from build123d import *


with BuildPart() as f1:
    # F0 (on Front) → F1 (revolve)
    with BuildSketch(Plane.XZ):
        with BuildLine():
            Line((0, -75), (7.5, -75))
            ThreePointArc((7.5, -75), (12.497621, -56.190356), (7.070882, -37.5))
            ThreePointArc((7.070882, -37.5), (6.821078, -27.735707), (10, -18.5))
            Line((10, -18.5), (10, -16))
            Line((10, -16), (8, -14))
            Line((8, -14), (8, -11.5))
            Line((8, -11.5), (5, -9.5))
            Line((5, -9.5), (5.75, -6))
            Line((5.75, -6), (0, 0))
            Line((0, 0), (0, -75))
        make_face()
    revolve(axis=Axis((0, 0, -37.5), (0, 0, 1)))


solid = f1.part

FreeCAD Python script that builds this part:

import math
import FreeCAD as App
import Part
import Sketcher
Q = App.Units.Quantity

doc = App.newDocument("Part")
body = doc.addObject("PartDesign::Body", "Body")

# Sketch on XZ plane
sketch1 = body.newObject("Sketcher::SketchObject", "Sketch")
sketch1.AttachmentSupport = (doc.getObject("XZ_Plane"), [""])
sketch1.MapMode = "FlatFace"
sketch1.addGeometry([
    Part.LineSegment(App.Vector(0, -75, 0), App.Vector(7.5, -75, 0)),  # 0
    Part.ArcOfCircle(Part.Circle(App.Vector(-23.8, -56.6, 0), App.Vector(0, 0, 1), 36.3), math.radians(-30), math.radians(32)),  # 1
    Part.ArcOfCircle(Part.Circle(App.Vector(34, -31.9, 0), App.Vector(0, 0, 1), 27.5), math.radians(151), math.radians(192)),  # 2
    Part.LineSegment(App.Vector(10, -18.5, 0), App.Vector(10, -16, 0)),  # 3
    Part.LineSegment(App.Vector(10, -16, 0), App.Vector(8, -14, 0)),  # 4
    Part.LineSegment(App.Vector(8, -14, 0), App.Vector(8, -11.5, 0)),  # 5
    Part.LineSegment(App.Vector(8, -11.5, 0), App.Vector(5, -9.5, 0)),  # 6
    Part.LineSegment(App.Vector(5, -9.5, 0), App.Vector(5.8, -6, 0)),  # 7
    Part.LineSegment(App.Vector(5.8, -6, 0), App.Vector(0, 0, 0)),  # 8
    Part.LineSegment(App.Vector(0, 0, 0), App.Vector(0, -75, 0)),  # 9
], False)
sketch1.addConstraint([
    Sketcher.Constraint("Coincident", 0, 2, 1, 1),
    Sketcher.Constraint("Coincident", 1, 2, 2, 2),
    Sketcher.Constraint("Coincident", 2, 1, 3, 1),
    Sketcher.Constraint("Coincident", 3, 2, 4, 1),
    Sketcher.Constraint("Coincident", 4, 2, 5, 1),
    Sketcher.Constraint("Coincident", 5, 2, 6, 1),
    Sketcher.Constraint("Coincident", 6, 2, 7, 1),
    Sketcher.Constraint("Coincident", 7, 2, 8, 1),
    Sketcher.Constraint("Coincident", 8, 2, 9, 1),
    Sketcher.Constraint("Coincident", 9, 2, 0, 1),
    Sketcher.Constraint("Horizontal", 0),
    Sketcher.Constraint("Vertical", 3),
    Sketcher.Constraint("Vertical", 5),
    Sketcher.Constraint("Vertical", 9),
    Sketcher.Constraint("Coincident", 8, 2, -1, 1),
    Sketcher.Constraint("Equal", 3, 5),
    Sketcher.Constraint("DistanceY", 9, 2, 9, 1, 75.0),
    Sketcher.Constraint("Angle", 4, Q("135 deg")),
    Sketcher.Constraint("DistanceX", 0, 1, 0, 2, 7.5),
    Sketcher.Constraint("DistanceY", 3, 1, 3, 2, 2.5),
    Sketcher.Constraint("DistanceX", -1, 1, 2, 1, 10.0),
    Sketcher.Constraint("DistanceY", 3, 2, -1, 1, 16.0),
    Sketcher.Constraint("DistanceX", -1, 1, 4, 2, 8.0),
    Sketcher.Constraint("DistanceX", -1, 1, 6, 2, 5.0),
    Sketcher.Constraint("DistanceY", 7, 2, -1, 1, 6.0),
    Sketcher.Constraint("DistanceY", 1, 2, 2, 1, 19.0),
    Sketcher.Constraint("DistanceY", 5, 2, 6, 2, 2.0),
    Sketcher.Constraint("DistanceX", -1, 1, 7, 2, 5.75),
    Sketcher.Constraint("Radius", 1, 36.333561),
    Sketcher.Constraint("Radius", 2, 27.49999),
    Sketcher.Constraint("DistanceY", 1, 3, -1, 1, 56.606099),
])
revolution = body.newObject("PartDesign::Revolution", "Revolution")
revolution.Profile = sketch1
revolution.ReferenceAxis = (sketch1, ["V_Axis"])
revolution.Angle = 360

doc.recompute()
